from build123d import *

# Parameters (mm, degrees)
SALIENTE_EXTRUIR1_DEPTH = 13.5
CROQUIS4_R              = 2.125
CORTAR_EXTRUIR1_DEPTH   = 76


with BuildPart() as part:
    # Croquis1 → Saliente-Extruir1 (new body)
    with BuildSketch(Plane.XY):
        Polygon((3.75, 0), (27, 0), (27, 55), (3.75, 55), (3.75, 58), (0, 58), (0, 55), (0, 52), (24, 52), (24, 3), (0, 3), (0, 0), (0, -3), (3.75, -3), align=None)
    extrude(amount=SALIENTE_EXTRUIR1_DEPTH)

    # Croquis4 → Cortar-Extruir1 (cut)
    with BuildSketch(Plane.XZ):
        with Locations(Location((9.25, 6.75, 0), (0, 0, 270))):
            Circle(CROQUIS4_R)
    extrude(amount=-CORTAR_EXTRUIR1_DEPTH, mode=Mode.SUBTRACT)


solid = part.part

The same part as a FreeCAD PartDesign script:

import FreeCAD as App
import Part
import Sketcher

doc = App.newDocument("Part")
params = doc.addObject("Spreadsheet::Sheet", "Params")
for row, (alias, value) in enumerate([
    ("sketch1_width", "24 mm"),
    ("sketch1_height", "55 mm"),
    ("sketch1_height2", "3 mm"),
    ("sketch1_width2", "23.25 mm"),
    ("pad1_length", "13.5 mm"),
    ("sketch2_diameter", "4.25 mm"),
    ("pocket1_length", "76 mm"),
], start=1):
    params.set(f"A{row}", alias)
    params.set(f"B{row}", "=" + value)
    params.setAlias(f"B{row}", alias)

body = doc.addObject("PartDesign::Body", "Body")

# Sketch on XY plane
sketch1 = body.newObject("Sketcher::SketchObject", "Sketch")
sketch1.AttachmentSupport = (doc.getObject("XY_Plane"), [""])
sketch1.MapMode = "FlatFace"
sketch1.addGeometry([
    Part.LineSegment(App.Vector(3.8, 0, 0), App.Vector(27, 0, 0)),  # 0
    Part.LineSegment(App.Vector(27, 0, 0), App.Vector(27, 55, 0)),  # 1
    Part.LineSegment(App.Vector(27, 55, 0), App.Vector(3.8, 55, 0)),  # 2
    Part.LineSegment(App.Vector(3.8, 55, 0), App.Vector(3.8, 58, 0)),  # 3
    Part.LineSegment(App.Vector(3.8, 58, 0), App.Vector(0, 58, 0)),  # 4
    Part.LineSegment(App.Vector(0, 58, 0), App.Vector(0, 52, 0)),  # 5
    Part.LineSegment(App.Vector(0, 52, 0), App.Vector(24, 52, 0)),  # 6
    Part.LineSegment(App.Vector(24, 52, 0), App.Vector(24, 3, 0)),  # 7
    Part.LineSegment(App.Vector(24, 3, 0), App.Vector(0, 3, 0)),  # 8
    Part.LineSegment(App.Vector(0, 3, 0), App.Vector(0, -3, 0)),  # 9
    Part.LineSegment(App.Vector(0, -3, 0), App.Vector(3.8, -3, 0)),  # 10
    Part.LineSegment(App.Vector(3.8, -3, 0), App.Vector(3.8, 0, 0)),  # 11
], False)
sketch1.addConstraint([
    Sketcher.Constraint("Coincident", 0, 2, 1, 1),
    Sketcher.Constraint("Coincident", 1, 2, 2, 1),
    Sketcher.Constraint("Coincident", 2, 2, 3, 1),
    Sketcher.Constraint("Coincident", 3, 2, 4, 1),
    Sketcher.Constraint("Coincident", 4, 2, 5, 1),
    Sketcher.Constraint("Coincident", 5, 2, 6, 1),
    Sketcher.Constraint("Coincident", 6, 2, 7, 1),
    Sketcher.Constraint("Coincident", 7, 2, 8, 1),
    Sketcher.Constraint("Coincident", 8, 2, 9, 1),
    Sketcher.Constraint("Coincident", 9, 2, 10, 1),
    Sketcher.Constraint("Coincident", 10, 2, 11, 1),
    Sketcher.Constraint("Coincident", 11, 2, 0, 1),
    Sketcher.Constraint("Horizontal", 0),
    Sketcher.Constraint("Vertical", 1),
    Sketcher.Constraint("Horizontal", 2),
    Sketcher.Constraint("Vertical", 3),
    Sketcher.Constraint("Horizontal", 4),
    Sketcher.Constraint("Vertical", 5),
    Sketcher.Constraint("Horizontal", 6),
    Sketcher.Constraint("Vertical", 7),
    Sketcher.Constraint("Horizontal", 8),
    Sketcher.Constraint("Vertical", 9),
    Sketcher.Constraint("Horizontal", 10),
    Sketcher.Constraint("Vertical", 11),
    Sketcher.Constraint("Symmetric", 8, 2, 9, 2, -1, 1),
    Sketcher.Constraint("PointOnObject", 0, 2, -1),
    Sketcher.Constraint("PointOnObject", 4, 2, -2),
    Sketcher.Constraint("Vertical", 3, 2, 10, 2),
    Sketcher.Constraint("Equal", 5, 9),
    Sketcher.Constraint("Equal", 3, 11),
    Sketcher.Constraint("DistanceX", 6, 1, 6, 2, 24.0),
    Sketcher.Constraint("DistanceY", 1, 1, 1, 2, 55.0),
    Sketcher.Constraint("DistanceY", 3, 1, 3, 2, 3.0),
    Sketcher.Constraint("DistanceX", -1, 1, 0, 2, 27.0),
    Sketcher.Constraint("DistanceX", 0, 1, 0, 2, 23.25),
])
sketch1.setExpression("Constraints[30]", "Params.sketch1_width")
sketch1.setExpression("Constraints[31]", "Params.sketch1_height")
sketch1.setExpression("Constraints[32]", "Params.sketch1_height2")
sketch1.setExpression("Constraints[34]", "Params.sketch1_width2")
pad1 = body.newObject("PartDesign::Pad", "Pad")
pad1.Profile = sketch1
pad1.setExpression("Length", "Params.pad1_length")

# Sketch on XZ plane
sketch2 = body.newObject("Sketcher::SketchObject", "Sketch001")
sketch2.AttachmentSupport = (doc.getObject("XZ_Plane"), [""])
sketch2.MapMode = "FlatFace"
sketch2.addGeometry(Part.Circle(App.Vector(9.2, 6.8, 0), App.Vector(0, 0, 1), 2.1), False)
sketch2.addConstraint([
    Sketcher.Constraint("Diameter", 0, 4.25),
    Sketcher.Constraint("DistanceX", -1, 1, 0, 3, 9.25),
    Sketcher.Constraint("DistanceY", -1, 1, 0, 3, 6.75),
])
sketch2.setExpression("Constraints[0]", "Params.sketch2_diameter")
pocket1 = body.newObject("PartDesign::Pocket", "Pocket")
pocket1.Profile = sketch2
pocket1.setExpression("Length", "Params.pocket1_length")

doc.recompute()
